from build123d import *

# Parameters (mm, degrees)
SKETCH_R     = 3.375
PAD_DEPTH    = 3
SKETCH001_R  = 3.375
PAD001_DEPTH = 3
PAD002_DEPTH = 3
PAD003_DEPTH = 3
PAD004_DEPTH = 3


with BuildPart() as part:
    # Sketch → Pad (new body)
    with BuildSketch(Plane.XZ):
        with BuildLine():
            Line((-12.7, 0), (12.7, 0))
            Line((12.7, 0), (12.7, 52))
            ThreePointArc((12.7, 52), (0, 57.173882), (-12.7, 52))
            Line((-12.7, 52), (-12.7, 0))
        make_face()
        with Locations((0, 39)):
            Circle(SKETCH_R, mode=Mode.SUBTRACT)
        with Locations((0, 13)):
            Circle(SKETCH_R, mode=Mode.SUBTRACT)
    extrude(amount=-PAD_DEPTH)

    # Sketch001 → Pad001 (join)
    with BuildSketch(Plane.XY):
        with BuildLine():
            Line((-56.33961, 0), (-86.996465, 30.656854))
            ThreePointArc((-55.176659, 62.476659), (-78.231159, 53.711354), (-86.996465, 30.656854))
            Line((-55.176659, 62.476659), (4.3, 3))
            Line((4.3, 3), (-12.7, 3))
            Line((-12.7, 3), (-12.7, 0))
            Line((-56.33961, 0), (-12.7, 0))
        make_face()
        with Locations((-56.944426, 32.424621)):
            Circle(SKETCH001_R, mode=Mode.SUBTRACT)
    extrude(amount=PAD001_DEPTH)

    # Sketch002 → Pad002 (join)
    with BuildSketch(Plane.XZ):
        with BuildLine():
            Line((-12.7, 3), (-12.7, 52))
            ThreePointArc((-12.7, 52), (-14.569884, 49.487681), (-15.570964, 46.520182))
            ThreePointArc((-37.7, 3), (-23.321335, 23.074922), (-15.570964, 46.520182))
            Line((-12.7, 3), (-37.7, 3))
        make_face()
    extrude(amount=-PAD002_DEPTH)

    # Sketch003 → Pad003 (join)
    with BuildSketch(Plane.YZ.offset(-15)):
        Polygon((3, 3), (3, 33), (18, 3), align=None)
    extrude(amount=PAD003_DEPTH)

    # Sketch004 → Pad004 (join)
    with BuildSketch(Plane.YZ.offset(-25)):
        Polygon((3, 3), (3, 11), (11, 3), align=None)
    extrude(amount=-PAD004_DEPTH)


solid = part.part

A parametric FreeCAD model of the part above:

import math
import FreeCAD as App
import Part
import Sketcher
Q = App.Units.Quantity


def add_polygon(sketch, points):
    """Adds a closed chain of lines whose ends are joined by coincident constraints."""
    first, n = sketch.GeometryCount, len(points)
    for a, b in zip(points, points[1:] + points[:1]):
        sketch.addGeometry(Part.LineSegment(App.Vector(*a, 0), App.Vector(*b, 0)), False)
    for i in range(n):
        sketch.addConstraint(Sketcher.Constraint("Coincident", first + i, 2, first + (i + 1) % n, 1))

doc = App.newDocument("Part")
params = doc.addObject("Spreadsheet::Sheet", "Params")
for row, (alias, value) in enumerate([
    ("sketch1_diameter", "6.75 mm"),
    ("sketch1_height", "52 mm"),
    ("sketch1_width", "25.4 mm"),
    ("pad1_length", "3 mm"),
    ("sketch2_diameter", "6.75 mm"),
    ("sketch2_width", "17 mm"),
    ("sketch2_height", "3 mm"),
    ("pad2_length", "3 mm"),
    ("sketch3_radius", "81.999999 mm"),
    ("sketch3_width", "25 mm"),
    ("sketch3_height", "49 mm"),
    ("pad3_length", "3 mm"),
    ("sketch4_width", "15 mm"),
    ("sketch4_height", "30 mm"),
    ("pad4_length", "3 mm"),
    ("sketch5_width", "8 mm"),
    ("pad5_length", "3 mm"),
], start=1):
    params.set(f"A{row}", alias)
    params.set(f"B{row}", "=" + value)
    params.setAlias(f"B{row}", alias)

body = doc.addObject("PartDesign::Body", "Body")

sketch1 = doc.addObject("Sketcher::SketchObject", "Sketch")
body.addObject(sketch1)
sketch1.AttachmentSupport = (doc.XZ_Plane, [""])
sketch1.MapMode = "FlatFace"
sketch1.addGeometry(Part.LineSegment(App.Vector(-12.7, 0, 0), App.Vector(12.7, 0, 0)), False)
sketch1.addGeometry(Part.LineSegment(App.Vector(12.7, 0, 0), App.Vector(12.7, 52, 0)), False)
sketch1.addGeometry(Part.ArcOfCircle(Part.Circle(App.Vector(0, 39, 0), App.Vector(0, 0, 1), 18.2), math.radians(46), math.radians(134)), False)
sketch1.addGeometry(Part.LineSegment(App.Vector(-12.7, 52, 0), App.Vector(-12.7, 0, 0)), False)
sketch1.addGeometry(Part.Circle(App.Vector(0, 13, 0), App.Vector(0, 0, 1), 3.4), False)
sketch1.addGeometry(Part.Circle(App.Vector(0, 39, 0), App.Vector(0, 0, 1), 3.4), False)
sketch1.addConstraint(Sketcher.Constraint("Coincident", 0, 2, 1, 1))
sketch1.addConstraint(Sketcher.Constraint("Coincident", 1, 2, 2, 1))
sketch1.addConstraint(Sketcher.Constraint("Coincident", 2, 2, 3, 1))
sketch1.addConstraint(Sketcher.Constraint("Coincident", 3, 2, 0, 1))
sketch1.addConstraint(Sketcher.Constraint("Horizontal", 0))
sketch1.addConstraint(Sketcher.Constraint("Vertical", 1))
sketch1.addConstraint(Sketcher.Constraint("Vertical", 3))
sketch1.addConstraint(Sketcher.Constraint("Coincident", 5, 3, 2, 3))
sketch1.addConstraint(Sketcher.Constraint("Equal", 4, 5))
sketch1.addConstraint(Sketcher.Constraint("Symmetric", 0, 2, 3, 2, -1, 1))
sketch1.addConstraint(Sketcher.Constraint("PointOnObject", 2, 3, -2))
sketch1.addConstraint(Sketcher.Constraint("PointOnObject", 4, 3, -2))
sketch1.addConstraint(Sketcher.Constraint("Diameter", 4, Q("6.75 mm")))
sketch1.addConstraint(Sketcher.Constraint("DistanceY", 1, 1, 1, 2, Q("52 mm")))
sketch1.addConstraint(Sketcher.Constraint("DistanceX", 0, 1, 0, 2, Q("25.4 mm")))
sketch1.addConstraint(Sketcher.Constraint("DistanceY", -1, 1, 2, 3, Q("38.999999 mm")))
sketch1.addConstraint(Sketcher.Constraint("DistanceY", -1, 1, 4, 3, Q("13 mm")))
sketch1.setExpression("Constraints[12]", "Params.sketch1_diameter")
sketch1.setExpression("Constraints[13]", "Params.sketch1_height")
sketch1.setExpression("Constraints[14]", "Params.sketch1_width")
pad1 = doc.addObject("PartDesign::Pad", "Pad")
body.addObject(pad1)
pad1.Profile = sketch1
pad1.setExpression("Length", "Params.pad1_length")
pad1.Reversed = True

sketch2 = doc.addObject("Sketcher::SketchObject", "Sketch001")
body.addObject(sketch2)
sketch2.AttachmentSupport = (doc.XY_Plane, [""])
sketch2.MapMode = "FlatFace"
sketch2.addGeometry(Part.LineSegment(App.Vector(-87, 30.7, 0), App.Vector(-56.3, 0, 0)), False)
sketch2.addGeometry(Part.LineSegment(App.Vector(-56.3, 0, 0), App.Vector(-12.7, 0, 0)), False)
sketch2.addGeometry(Part.LineSegment(App.Vector(-12.7, 0, 0), App.Vector(-12.7, 3, 0)), False)
sketch2.addGeometry(Part.LineSegment(App.Vector(-12.7, 3, 0), App.Vector(4.3, 3, 0)), False)
sketch2.addGeometry(Part.LineSegment(App.Vector(4.3, 3, 0), App.Vector(-55.2, 62.5, 0)), False)
sketch2.addGeometry(Part.ArcOfCircle(Part.Circle(App.Vector(-56.9, 32.4, 0), App.Vector(0, 0, 1), 30.1), math.radians(87), math.radians(183)), False)
sketch2.addGeometry(Part.Circle(App.Vector(-56.9, 32.4, 0), App.Vector(0, 0, 1), 3.4), False)
sketch2.addConstraint(Sketcher.Constraint("Coincident", 0, 2, 1, 1))
sketch2.addConstraint(Sketcher.Constraint("Coincident", 1, 2, 2, 1))
sketch2.addConstraint(Sketcher.Constraint("Coincident", 2, 2, 3, 1))
sketch2.addConstraint(Sketcher.Constraint("Coincident", 3, 2, 4, 1))
sketch2.addConstraint(Sketcher.Constraint("Coincident", 4, 2, 5, 1))
sketch2.addConstraint(Sketcher.Constraint("Coincident", 5, 2, 0, 1))
sketch2.addConstraint(Sketcher.Constraint("Horizontal", 1))
sketch2.addConstraint(Sketcher.Constraint("Vertical", 2))
sketch2.addConstraint(Sketcher.Constraint("Horizontal", 3))
sketch2.addConstraint(Sketcher.Constraint("Coincident", 6, 3, 5, 3))
sketch2.addConstraint(Sketcher.Constraint("PointOnObject", 0, 2, -1))
sketch2.addConstraint(Sketcher.Constraint("Parallel", 0, 4))
sketch2.addConstraint(Sketcher.Constraint("Diameter", 6, Q("6.75 mm")))
sketch2.addConstraint(Sketcher.Constraint("DistanceX", 3, 1, 3, 2, Q("17 mm")))
sketch2.addConstraint(Sketcher.Constraint("DistanceY", 2, 1, 2, 2, Q("3 mm")))
sketch2.addConstraint(Sketcher.Constraint("Angle", 0, Q("-44.999999 deg")))
sketch2.addConstraint(Sketcher.Constraint("DistanceX", 1, 2, -1, 1, Q("12.7 mm")))
sketch2.addConstraint(Sketcher.Constraint("Radius", 5, Q("30.103987 mm")))
sketch2.addConstraint(Sketcher.Constraint("DistanceX", 1, 1, 1, 2, Q("43.63961 mm")))
sketch2.addConstraint(Sketcher.Constraint("Distance", 0, Q("43.355339 mm")))
sketch2.addConstraint(Sketcher.Constraint("DistanceY", -1, 1, 5, 3, Q("32.42462 mm")))
sketch2.setExpression("Constraints[12]", "Params.sketch2_diameter")
sketch2.setExpression("Constraints[13]", "Params.sketch2_width")
sketch2.setExpression("Constraints[14]", "Params.sketch2_height")
pad2 = doc.addObject("PartDesign::Pad", "Pad001")
body.addObject(pad2)
pad2.Profile = sketch2
pad2.setExpression("Length", "Params.pad2_length")

sketch3 = doc.addObject("Sketcher::SketchObject", "Sketch002")
body.addObject(sketch3)
sketch3.AttachmentSupport = (doc.XZ_Plane, [""])
sketch3.MapMode = "FlatFace"
sketch3.addGeometry(Part.LineSegment(App.Vector(-13, 3, 0), App.Vector(-13, 52, 0)), False)
sketch3.addGeometry(Part.ArcOfCircle(Part.Circle(App.Vector(-6, 45, 0), App.Vector(0, 0, 1), 10), math.radians(134), math.radians(170)), False)
sketch3.addGeometry(Part.ArcOfCircle(Part.Circle(App.Vector(-96, 60, 0), App.Vector(0, 0, 1), 82), math.radians(-44), math.radians(-10)), False)
sketch3.addGeometry(Part.LineSegment(App.Vector(-38, 3, 0), App.Vector(-13, 3, 0)), False)
sketch3.addConstraint(Sketcher.Constraint("Coincident", 0, 2, 1, 1))
sketch3.addConstraint(Sketcher.Constraint("Tangent", 1, 2, 2, 2))
sketch3.addConstraint(Sketcher.Constraint("Coincident", 2, 1, 3, 1))
sketch3.addConstraint(Sketcher.Constraint("Coincident", 3, 2, 0, 1))
sketch3.addConstraint(Sketcher.Constraint("Vertical", 0))
sketch3.addConstraint(Sketcher.Constraint("Horizontal", 3))
sketch3.addConstraint(Sketcher.Constraint("Radius", 2, Q("81.999999 mm")))
sketch3.addConstraint(Sketcher.Constraint("DistanceX", 3, 1, 3, 2, Q("25 mm")))
sketch3.addConstraint(Sketcher.Constraint("DistanceY", 0, 1, 0, 2, Q("49 mm")))
sketch3.addConstraint(Sketcher.Constraint("DistanceY", -1, 1, 0, 2, Q("52 mm")))
sketch3.addConstraint(Sketcher.Constraint("DistanceX", 0, 2, -1, 1, Q("12.7 mm")))
sketch3.addConstraint(Sketcher.Constraint("Radius", 1, Q("10.000005 mm")))
sketch3.addConstraint(Sketcher.Constraint("DistanceX", 1, 3, -1, 1, Q("5.711951 mm")))
sketch3.setExpression("Constraints[6]", "Params.sketch3_radius")
sketch3.setExpression("Constraints[7]", "Params.sketch3_width")
sketch3.setExpression("Constraints[8]", "Params.sketch3_height")
pad3 = doc.addObject("PartDesign::Pad", "Pad002")
body.addObject(pad3)
pad3.Profile = sketch3
pad3.setExpression("Length", "Params.pad3_length")
pad3.Reversed = True

sketch4 = doc.addObject("Sketcher::SketchObject", "Sketch003")
body.addObject(sketch4)
sketch4.AttachmentSupport = (doc.YZ_Plane, [""])
sketch4.MapMode = "FlatFace"
sketch4.AttachmentOffset = App.Placement(App.Vector(0, 0, -15), App.Rotation())
add_polygon(sketch4, [(3, 33), (3, 3), (18, 3)])
sketch4.addConstraint(Sketcher.Constraint("Vertical", 0))
sketch4.addConstraint(Sketcher.Constraint("Horizontal", 1))
sketch4.addConstraint(Sketcher.Constraint("DistanceX", 1, 1, 1, 2, Q("15 mm")))
sketch4.addConstraint(Sketcher.Constraint("DistanceY", 0, 2, 0, 1, Q("30 mm")))
sketch4.addConstraint(Sketcher.Constraint("DistanceX", -1, 1, 0, 2, Q("3 mm")))
sketch4.addConstraint(Sketcher.Constraint("DistanceY", -1, 1, 0, 2, Q("3 mm")))
sketch4.setExpression("Constraints[5]", "Params.sketch4_width")
sketch4.setExpression("Constraints[6]", "Params.sketch4_height")
pad4 = doc.addObject("PartDesign::Pad", "Pad003")
body.addObject(pad4)
pad4.Profile = sketch4
pad4.setExpression("Length", "Params.pad4_length")

sketch5 = doc.addObject("Sketcher::SketchObject", "Sketch004")
body.addObject(sketch5)
sketch5.AttachmentSupport = (doc.YZ_Plane, [""])
sketch5.MapMode = "FlatFace"
sketch5.AttachmentOffset = App.Placement(App.Vector(0, 0, -25), App.Rotation())
add_polygon(sketch5, [(3, 11), (3, 3), (11, 3)])
sketch5.addConstraint(Sketcher.Constraint("Vertical", 0))
sketch5.addConstraint(Sketcher.Constraint("Horizontal", 1))
sketch5.addConstraint(Sketcher.Constraint("Equal", 1, 0))
sketch5.addConstraint(Sketcher.Constraint("DistanceX", 1, 1, 1, 2, Q("8 mm")))
sketch5.addConstraint(Sketcher.Constraint("DistanceX", -1, 1, 0, 2, Q("3 mm")))
sketch5.addConstraint(Sketcher.Constraint("DistanceY", -1, 1, 0, 2, Q("3 mm")))
sketch5.setExpression("Constraints[6]", "Params.sketch5_width")
pad5 = doc.addObject("PartDesign::Pad", "Pad004")
body.addObject(pad5)
pad5.Profile = sketch5
pad5.setExpression("Length", "Params.pad5_length")
pad5.Reversed = True

doc.recompute()
